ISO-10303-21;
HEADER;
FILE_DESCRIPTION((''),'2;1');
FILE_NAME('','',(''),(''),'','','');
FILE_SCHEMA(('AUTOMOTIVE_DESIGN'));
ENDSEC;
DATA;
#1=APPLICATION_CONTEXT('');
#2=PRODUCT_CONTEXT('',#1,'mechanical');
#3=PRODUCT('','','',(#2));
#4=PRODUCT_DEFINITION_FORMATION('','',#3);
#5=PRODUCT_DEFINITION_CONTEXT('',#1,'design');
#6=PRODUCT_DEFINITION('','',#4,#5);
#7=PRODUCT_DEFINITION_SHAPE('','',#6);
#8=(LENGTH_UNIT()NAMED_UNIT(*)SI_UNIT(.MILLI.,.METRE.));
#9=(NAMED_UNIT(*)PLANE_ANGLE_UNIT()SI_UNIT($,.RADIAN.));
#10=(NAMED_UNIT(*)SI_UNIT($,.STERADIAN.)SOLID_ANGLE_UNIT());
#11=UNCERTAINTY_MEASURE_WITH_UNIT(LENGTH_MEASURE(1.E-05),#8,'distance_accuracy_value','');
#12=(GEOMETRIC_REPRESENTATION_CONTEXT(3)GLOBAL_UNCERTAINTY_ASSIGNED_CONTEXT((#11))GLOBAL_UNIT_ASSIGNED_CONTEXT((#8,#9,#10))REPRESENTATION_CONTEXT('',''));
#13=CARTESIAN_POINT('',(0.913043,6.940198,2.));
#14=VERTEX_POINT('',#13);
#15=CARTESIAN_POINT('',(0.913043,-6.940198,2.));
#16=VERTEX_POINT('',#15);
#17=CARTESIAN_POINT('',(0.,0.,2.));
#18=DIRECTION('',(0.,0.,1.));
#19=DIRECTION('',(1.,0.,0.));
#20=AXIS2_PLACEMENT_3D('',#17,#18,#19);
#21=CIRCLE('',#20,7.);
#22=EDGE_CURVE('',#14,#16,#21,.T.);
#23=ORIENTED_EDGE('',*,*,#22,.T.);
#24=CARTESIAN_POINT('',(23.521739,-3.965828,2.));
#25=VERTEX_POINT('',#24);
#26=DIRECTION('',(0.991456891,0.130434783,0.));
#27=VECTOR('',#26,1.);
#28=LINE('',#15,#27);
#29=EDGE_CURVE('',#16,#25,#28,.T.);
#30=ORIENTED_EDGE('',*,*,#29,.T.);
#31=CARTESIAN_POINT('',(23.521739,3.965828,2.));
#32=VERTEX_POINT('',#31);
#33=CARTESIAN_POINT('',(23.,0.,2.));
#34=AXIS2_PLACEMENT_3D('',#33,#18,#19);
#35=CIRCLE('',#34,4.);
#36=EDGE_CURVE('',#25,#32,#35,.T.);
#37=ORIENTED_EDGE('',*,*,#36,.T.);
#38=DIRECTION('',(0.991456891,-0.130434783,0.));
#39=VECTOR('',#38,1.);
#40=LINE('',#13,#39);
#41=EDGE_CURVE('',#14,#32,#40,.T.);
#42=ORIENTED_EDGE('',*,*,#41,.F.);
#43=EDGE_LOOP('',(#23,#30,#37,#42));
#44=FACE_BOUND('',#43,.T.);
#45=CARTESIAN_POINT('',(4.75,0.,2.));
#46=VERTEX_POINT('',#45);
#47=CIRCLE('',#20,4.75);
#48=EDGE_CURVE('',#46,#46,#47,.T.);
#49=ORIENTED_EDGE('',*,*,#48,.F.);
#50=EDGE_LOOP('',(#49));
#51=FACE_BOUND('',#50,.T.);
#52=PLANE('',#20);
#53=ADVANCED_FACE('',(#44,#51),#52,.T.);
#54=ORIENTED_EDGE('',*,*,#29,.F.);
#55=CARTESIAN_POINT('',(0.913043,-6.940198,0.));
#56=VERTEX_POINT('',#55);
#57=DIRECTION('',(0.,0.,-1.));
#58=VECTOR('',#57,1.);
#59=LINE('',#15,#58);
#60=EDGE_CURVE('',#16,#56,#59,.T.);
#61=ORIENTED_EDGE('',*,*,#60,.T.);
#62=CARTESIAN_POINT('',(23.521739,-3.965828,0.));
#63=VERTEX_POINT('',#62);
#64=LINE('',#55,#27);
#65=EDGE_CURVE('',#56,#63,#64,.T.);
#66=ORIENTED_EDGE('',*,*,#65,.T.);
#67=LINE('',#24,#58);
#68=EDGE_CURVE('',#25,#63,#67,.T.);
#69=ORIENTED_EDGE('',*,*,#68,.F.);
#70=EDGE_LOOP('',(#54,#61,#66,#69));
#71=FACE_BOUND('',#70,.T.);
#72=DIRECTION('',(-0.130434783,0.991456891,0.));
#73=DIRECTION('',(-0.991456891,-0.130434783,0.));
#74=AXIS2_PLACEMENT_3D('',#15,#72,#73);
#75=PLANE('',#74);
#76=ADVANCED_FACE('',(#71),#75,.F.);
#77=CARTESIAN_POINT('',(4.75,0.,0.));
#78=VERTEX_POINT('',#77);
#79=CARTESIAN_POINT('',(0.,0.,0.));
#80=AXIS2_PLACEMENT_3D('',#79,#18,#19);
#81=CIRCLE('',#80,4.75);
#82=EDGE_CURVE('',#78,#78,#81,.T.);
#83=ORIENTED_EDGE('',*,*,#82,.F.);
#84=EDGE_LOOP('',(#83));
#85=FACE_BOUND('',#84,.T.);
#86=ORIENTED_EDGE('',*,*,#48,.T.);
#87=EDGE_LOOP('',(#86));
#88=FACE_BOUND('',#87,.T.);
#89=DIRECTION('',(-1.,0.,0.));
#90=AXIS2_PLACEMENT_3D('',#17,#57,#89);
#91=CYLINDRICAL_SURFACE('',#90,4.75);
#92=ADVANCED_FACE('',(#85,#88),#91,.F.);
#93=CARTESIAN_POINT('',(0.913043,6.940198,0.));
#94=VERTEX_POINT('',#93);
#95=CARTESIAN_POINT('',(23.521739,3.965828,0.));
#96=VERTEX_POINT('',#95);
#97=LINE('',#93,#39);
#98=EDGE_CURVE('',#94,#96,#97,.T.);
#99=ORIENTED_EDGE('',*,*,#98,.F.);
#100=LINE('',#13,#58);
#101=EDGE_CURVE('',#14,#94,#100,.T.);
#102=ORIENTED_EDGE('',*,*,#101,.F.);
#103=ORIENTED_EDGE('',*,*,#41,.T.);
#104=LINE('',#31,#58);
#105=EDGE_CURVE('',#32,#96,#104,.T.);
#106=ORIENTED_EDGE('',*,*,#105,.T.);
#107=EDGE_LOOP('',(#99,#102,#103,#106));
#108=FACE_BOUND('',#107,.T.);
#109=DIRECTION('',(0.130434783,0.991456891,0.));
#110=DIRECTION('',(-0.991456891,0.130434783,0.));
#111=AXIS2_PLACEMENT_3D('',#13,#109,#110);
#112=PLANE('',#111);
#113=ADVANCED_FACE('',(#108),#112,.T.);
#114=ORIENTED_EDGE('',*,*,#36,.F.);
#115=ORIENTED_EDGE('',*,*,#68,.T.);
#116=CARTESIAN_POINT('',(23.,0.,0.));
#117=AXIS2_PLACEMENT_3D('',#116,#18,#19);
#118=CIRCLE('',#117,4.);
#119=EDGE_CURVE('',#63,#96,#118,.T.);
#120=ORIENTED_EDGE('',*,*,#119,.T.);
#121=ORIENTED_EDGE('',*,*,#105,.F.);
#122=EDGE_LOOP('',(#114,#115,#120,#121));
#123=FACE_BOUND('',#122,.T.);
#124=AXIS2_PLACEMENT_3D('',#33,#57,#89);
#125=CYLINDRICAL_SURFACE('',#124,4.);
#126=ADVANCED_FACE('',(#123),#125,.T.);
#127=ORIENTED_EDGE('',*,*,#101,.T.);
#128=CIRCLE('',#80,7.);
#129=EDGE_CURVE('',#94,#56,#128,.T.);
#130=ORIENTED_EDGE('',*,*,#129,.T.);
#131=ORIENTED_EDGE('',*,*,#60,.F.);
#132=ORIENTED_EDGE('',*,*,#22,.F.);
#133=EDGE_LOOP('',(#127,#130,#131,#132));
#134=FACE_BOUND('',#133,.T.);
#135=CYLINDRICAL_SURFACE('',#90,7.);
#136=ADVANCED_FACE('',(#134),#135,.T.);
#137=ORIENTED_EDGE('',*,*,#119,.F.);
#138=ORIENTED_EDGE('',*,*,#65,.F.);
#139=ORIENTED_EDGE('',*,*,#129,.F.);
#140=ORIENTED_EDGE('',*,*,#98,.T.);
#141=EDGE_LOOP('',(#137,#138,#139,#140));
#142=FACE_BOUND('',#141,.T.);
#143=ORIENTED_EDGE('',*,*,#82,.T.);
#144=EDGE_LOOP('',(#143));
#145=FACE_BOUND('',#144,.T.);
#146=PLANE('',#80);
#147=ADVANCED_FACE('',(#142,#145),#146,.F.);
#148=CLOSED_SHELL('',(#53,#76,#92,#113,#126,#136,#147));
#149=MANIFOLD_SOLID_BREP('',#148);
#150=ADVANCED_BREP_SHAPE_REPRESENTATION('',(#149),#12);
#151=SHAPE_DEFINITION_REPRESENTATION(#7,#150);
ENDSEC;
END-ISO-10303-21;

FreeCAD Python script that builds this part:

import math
import FreeCAD as App
import Part
import Sketcher

V = App.Vector

doc = App.newDocument("Part")
params = doc.addObject("Spreadsheet::Sheet", "Params")
for row, (alias, value) in enumerate([
    ("sketch1_radius", "7 mm"),
    ("sketch1_radius2", "4 mm"),
    ("sketch1_diameter", "9.5 mm"),
    ("pad1_length", "2 mm"),
], start=1):
    params.set(f"A{row}", alias)
    params.set(f"B{row}", "=" + value)
    params.setAlias(f"B{row}", alias)

body = doc.addObject("PartDesign::Body", "Body")

sketch1 = doc.addObject("Sketcher::SketchObject", "Sketch")
body.addObject(sketch1)
sketch1.AttachmentSupport = (doc.XY_Plane, [""])
sketch1.MapMode = "FlatFace"
sketch1.addGeometry([
    Part.LineSegment(V(23.521739, 3.965828, 0), V(0.913043, 6.940198, 0)),
    Part.ArcOfCircle(Part.Circle(V(0, 0, 0), V(0, 0, 1), 7), math.radians(82.505283), math.radians(277.494717)),
    Part.LineSegment(V(0.913043, -6.940198, 0), V(23.521739, -3.965828, 0)),
    Part.ArcOfCircle(Part.Circle(V(23, 0, 0), V(0, 0, 1), 4), math.radians(-82.505283), math.radians(82.505283)),
    Part.Circle(V(0, 0, 0), V(0, 0, 1), 4.75),
], False)
sketch1.addConstraint([
    Sketcher.Constraint("Tangent", 0, 2, 1, 1),
    Sketcher.Constraint("Tangent", 1, 2, 2, 1),
    Sketcher.Constraint("Tangent", 2, 2, 3, 1),
    Sketcher.Constraint("Tangent", 3, 2, 0, 1),
    Sketcher.Constraint("Coincident", 1, 3, -1, 1),
    Sketcher.Constraint("Coincident", 4, 3, -1, 1),
    Sketcher.Constraint("PointOnObject", 3, 3, -1),
    Sketcher.Constraint("Radius", 1, 7.0),
    Sketcher.Constraint("Radius", 3, 4.0),
    Sketcher.Constraint("Diameter", 4, 9.5),
    Sketcher.Constraint("DistanceX", -1, 1, 3, 3, 23.0),
])
sketch1.setExpression("Constraints[7]", "Params.sketch1_radius")
sketch1.setExpression("Constraints[8]", "Params.sketch1_radius2")
sketch1.setExpression("Constraints[9]", "Params.sketch1_diameter")
pad1 = doc.addObject("PartDesign::Pad", "Pad")
body.addObject(pad1)
pad1.Profile = sketch1
pad1.setExpression("Length", "Params.pad1_length")

doc.recompute()
